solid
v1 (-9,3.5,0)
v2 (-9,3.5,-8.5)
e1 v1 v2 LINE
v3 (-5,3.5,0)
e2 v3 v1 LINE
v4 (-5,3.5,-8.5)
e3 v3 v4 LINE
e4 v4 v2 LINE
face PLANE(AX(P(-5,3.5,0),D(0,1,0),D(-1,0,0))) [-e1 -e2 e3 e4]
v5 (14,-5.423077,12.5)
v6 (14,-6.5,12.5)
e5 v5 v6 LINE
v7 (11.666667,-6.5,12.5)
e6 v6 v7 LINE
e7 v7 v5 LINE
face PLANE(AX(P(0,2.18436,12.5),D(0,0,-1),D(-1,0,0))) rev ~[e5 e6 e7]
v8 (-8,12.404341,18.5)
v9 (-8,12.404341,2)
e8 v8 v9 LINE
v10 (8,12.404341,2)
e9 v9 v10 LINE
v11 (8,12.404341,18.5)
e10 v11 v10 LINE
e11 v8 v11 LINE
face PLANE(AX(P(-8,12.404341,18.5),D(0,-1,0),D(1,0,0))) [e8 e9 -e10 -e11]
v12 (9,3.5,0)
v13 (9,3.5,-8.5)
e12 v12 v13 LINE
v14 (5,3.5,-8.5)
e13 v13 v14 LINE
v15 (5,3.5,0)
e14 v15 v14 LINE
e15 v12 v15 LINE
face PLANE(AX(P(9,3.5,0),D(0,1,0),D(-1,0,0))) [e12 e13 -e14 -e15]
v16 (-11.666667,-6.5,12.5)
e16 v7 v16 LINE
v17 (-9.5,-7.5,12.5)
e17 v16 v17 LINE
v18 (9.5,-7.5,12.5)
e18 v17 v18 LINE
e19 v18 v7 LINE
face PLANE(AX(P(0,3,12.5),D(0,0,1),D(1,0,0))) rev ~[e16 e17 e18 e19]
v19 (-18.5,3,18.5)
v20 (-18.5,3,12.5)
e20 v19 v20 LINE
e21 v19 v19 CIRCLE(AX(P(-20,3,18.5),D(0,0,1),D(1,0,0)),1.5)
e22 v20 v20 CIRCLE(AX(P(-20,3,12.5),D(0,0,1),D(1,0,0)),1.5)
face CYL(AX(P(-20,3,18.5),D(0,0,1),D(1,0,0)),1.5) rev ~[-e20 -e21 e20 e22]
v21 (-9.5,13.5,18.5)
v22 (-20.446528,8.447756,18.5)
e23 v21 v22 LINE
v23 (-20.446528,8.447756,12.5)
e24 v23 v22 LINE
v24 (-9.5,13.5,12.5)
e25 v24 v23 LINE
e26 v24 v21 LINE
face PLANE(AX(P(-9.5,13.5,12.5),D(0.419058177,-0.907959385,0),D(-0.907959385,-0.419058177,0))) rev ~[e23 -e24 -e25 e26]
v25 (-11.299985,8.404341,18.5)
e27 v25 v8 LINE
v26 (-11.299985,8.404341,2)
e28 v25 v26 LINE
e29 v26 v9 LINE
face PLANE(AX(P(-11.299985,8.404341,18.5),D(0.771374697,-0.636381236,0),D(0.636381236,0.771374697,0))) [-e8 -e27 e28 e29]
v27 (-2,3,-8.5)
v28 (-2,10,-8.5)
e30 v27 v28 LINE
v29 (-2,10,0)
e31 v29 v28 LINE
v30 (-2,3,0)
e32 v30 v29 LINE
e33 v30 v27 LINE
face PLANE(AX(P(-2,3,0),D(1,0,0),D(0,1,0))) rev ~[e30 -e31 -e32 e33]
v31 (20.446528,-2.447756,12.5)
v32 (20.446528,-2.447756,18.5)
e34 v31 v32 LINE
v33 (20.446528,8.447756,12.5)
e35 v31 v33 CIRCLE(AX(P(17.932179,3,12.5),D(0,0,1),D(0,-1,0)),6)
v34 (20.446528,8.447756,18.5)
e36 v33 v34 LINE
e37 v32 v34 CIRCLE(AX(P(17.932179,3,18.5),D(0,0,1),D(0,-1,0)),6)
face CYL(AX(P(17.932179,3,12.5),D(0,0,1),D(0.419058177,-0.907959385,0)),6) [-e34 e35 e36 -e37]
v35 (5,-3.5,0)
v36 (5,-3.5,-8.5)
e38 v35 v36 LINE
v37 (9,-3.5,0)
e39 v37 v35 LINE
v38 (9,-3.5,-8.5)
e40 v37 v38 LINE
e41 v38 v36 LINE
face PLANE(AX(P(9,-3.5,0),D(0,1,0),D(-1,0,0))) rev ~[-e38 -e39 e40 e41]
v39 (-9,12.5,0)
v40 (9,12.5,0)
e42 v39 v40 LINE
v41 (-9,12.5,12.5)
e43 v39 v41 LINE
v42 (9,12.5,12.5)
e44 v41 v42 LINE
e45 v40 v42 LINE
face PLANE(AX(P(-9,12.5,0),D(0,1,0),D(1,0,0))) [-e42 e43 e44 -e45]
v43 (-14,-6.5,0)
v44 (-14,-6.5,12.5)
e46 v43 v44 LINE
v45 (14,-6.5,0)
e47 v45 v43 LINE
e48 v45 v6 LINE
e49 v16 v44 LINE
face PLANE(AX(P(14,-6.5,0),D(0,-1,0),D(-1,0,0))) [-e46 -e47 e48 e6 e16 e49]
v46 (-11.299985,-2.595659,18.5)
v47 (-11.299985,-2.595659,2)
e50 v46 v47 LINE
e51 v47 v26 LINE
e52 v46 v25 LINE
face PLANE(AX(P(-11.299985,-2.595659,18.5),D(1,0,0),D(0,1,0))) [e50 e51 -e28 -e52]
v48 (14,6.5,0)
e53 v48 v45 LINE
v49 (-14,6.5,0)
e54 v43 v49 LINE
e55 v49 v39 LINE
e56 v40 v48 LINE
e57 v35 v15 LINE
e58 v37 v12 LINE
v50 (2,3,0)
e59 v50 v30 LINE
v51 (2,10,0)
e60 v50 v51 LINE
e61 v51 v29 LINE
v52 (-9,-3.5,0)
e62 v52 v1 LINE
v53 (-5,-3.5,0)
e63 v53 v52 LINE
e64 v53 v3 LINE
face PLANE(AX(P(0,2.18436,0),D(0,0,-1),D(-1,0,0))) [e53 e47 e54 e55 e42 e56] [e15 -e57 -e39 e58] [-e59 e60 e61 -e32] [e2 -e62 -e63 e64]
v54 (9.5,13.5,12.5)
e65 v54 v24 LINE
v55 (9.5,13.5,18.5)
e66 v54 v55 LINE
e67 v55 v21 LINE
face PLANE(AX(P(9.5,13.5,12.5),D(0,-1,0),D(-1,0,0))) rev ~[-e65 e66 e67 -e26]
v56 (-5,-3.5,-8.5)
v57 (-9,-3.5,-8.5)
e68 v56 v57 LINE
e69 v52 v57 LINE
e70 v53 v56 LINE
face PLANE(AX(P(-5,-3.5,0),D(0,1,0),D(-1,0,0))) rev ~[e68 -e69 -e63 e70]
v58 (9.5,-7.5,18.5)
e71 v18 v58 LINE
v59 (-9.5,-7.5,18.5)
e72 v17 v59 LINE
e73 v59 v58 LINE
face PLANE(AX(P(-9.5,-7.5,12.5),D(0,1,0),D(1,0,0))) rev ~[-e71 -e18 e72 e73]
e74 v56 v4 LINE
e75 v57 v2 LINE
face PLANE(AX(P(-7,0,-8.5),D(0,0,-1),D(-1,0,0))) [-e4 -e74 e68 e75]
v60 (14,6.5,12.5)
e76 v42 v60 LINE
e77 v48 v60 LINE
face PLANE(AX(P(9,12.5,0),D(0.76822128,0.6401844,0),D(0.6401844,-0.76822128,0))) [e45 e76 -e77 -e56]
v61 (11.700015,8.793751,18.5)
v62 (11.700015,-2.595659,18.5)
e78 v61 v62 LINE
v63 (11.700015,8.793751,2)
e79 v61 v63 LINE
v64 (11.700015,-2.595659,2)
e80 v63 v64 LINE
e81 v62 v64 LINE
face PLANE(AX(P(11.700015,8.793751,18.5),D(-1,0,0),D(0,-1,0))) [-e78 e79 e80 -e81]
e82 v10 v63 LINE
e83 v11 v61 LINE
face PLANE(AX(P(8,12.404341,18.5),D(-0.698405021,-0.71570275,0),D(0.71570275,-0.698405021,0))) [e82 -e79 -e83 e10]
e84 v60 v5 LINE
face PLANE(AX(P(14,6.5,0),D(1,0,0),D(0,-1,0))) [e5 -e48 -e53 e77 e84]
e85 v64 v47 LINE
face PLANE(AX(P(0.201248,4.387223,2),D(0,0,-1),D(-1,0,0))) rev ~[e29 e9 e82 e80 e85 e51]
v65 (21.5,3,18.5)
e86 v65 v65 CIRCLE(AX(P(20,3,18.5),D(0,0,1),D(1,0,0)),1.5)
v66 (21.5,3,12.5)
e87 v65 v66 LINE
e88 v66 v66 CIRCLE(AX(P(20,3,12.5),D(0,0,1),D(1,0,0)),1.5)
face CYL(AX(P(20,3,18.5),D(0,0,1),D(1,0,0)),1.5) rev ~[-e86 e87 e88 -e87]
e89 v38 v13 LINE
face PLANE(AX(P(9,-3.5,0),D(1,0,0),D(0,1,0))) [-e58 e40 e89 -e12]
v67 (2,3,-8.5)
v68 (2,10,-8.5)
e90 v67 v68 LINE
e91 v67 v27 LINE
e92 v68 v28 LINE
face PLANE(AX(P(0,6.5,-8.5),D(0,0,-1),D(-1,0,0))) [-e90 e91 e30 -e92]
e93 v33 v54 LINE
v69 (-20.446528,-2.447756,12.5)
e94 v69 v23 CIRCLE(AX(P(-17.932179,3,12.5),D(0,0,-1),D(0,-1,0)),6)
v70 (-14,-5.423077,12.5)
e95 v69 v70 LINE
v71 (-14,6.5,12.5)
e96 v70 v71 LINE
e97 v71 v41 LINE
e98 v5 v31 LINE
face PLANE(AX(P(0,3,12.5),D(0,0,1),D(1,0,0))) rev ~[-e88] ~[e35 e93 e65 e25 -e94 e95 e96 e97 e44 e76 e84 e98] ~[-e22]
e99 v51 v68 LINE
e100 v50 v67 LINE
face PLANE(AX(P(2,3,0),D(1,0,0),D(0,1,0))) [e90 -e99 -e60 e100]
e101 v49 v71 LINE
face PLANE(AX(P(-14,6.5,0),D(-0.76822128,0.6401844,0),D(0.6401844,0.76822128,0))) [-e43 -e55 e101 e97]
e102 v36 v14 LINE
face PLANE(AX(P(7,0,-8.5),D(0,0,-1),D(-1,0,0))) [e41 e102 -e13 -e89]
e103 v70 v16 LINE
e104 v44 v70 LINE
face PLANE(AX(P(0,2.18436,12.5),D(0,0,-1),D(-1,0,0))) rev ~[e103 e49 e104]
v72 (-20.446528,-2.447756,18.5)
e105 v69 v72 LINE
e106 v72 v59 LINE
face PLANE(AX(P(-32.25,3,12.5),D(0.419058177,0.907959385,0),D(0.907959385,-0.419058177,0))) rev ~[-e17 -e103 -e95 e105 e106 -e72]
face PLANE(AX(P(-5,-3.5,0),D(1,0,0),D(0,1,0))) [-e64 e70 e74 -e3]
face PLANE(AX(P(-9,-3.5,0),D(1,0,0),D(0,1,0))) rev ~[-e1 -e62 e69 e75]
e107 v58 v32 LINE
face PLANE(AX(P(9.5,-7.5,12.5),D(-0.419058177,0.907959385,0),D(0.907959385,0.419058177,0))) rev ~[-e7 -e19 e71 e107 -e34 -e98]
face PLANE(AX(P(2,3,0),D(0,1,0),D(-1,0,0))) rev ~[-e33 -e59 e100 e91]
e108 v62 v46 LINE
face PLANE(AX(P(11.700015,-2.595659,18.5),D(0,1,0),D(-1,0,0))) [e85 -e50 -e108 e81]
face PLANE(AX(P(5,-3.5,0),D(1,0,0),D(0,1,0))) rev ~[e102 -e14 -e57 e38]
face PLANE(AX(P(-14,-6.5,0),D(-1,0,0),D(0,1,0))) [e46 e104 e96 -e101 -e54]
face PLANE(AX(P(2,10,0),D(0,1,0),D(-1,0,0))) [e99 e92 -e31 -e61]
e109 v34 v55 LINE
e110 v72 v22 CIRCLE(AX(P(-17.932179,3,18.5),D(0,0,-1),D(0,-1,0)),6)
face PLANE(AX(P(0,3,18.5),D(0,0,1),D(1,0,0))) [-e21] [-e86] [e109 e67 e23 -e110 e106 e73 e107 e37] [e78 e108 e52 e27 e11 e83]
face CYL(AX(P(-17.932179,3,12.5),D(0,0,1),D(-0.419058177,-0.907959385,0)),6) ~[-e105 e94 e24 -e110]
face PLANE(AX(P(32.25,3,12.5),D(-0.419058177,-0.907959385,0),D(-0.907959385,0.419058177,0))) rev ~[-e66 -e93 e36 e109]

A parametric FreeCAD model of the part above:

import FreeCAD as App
import Part
import Sketcher
from FreeCAD import Vector


def edges_at(feature, points):
    """Names of the edges that pass closest to the given points."""
    edges = feature.Shape.Edges
    near = lambda p: min(range(len(edges)), key=lambda i: edges[i].distToShape(Part.Vertex(*p))[0])
    return sorted({f"Edge{near(p) + 1}" for p in points})


def add_polygon(sketch, points):
    """Adds a closed chain of lines whose ends are joined by coincident constraints."""
    first, n = sketch.GeometryCount, len(points)
    for a, b in zip(points, points[1:] + points[:1]):
        sketch.addGeometry(Part.LineSegment(App.Vector(*a, 0), App.Vector(*b, 0)), False)
    for i in range(n):
        sketch.addConstraint(Sketcher.Constraint("Coincident", first + i, 2, first + (i + 1) % n, 1))

doc = App.newDocument("Part")
params = doc.addObject("Spreadsheet::Sheet", "Params")
for row, (alias, value) in enumerate([
    ("sketch1_width", "18 mm"),
    ("sketch1_width2", "28 mm"),
    ("sketch1_height", "13 mm"),
    ("pad1_length", "12.5 mm"),
    ("sketch2_width", "4 mm"),
    ("sketch2_height", "7 mm"),
    ("pad2_length", "8.5 mm"),
    ("sketch3_width", "19 mm"),
    ("pad3_length", "6 mm"),
    ("sketch4_diameter", "3 mm"),
    ("pocket1_length", "6 mm"),
    ("fillet_radius", "6 mm"),
    ("sketch5_width", "16 mm"),
    ("sketch5_width2", "23 mm"),
    ("sketch5_height", "11 mm"),
    ("pocket2_length", "16.5 mm"),
], start=1):
    params.set(f"A{row}", alias)
    params.set(f"B{row}", "=" + value)
    params.setAlias(f"B{row}", alias)

body = doc.addObject("PartDesign::Body", "Body")

sketch1 = body.newObject("Sketcher::SketchObject", "Sketch")
sketch1.AttachmentSupport = (doc.getObject("XY_Plane"), [""])
sketch1.MapMode = "FlatFace"
add_polygon(sketch1, [(9, 12), (-9, 12), (-14, 6), (-14, -6), (14, -6), (14, 6)])
sketch1.addConstraint([
    Sketcher.Constraint("Horizontal", 0),
    Sketcher.Constraint("Vertical", 2),
    Sketcher.Constraint("Horizontal", 3),
    Sketcher.Constraint("Vertical", 4),
    Sketcher.Constraint("Symmetric", 1, 2, 3, 2, -1, 1),
    Sketcher.Constraint("Horizontal", 1, 2, 4, 2),
    Sketcher.Constraint("Equal", 1, 5),
    Sketcher.Constraint("DistanceX", 0, 2, 0, 1, 18.0),
    Sketcher.Constraint("DistanceX", 3, 1, 3, 2, 28.0),
    Sketcher.Constraint("DistanceY", 2, 2, 2, 1, 13.0),
    Sketcher.Constraint("DistanceY", 1, 2, 0, 2, 6.0),
])
sketch1.setExpression("Constraints[13]", "Params.sketch1_width")
sketch1.setExpression("Constraints[14]", "Params.sketch1_width2")
sketch1.setExpression("Constraints[15]", "Params.sketch1_height")
pad1 = body.newObject("PartDesign::Pad", "Pad")
pad1.Profile = sketch1
pad1.setExpression("Length", "Params.pad1_length")

sketch2 = body.newObject("Sketcher::SketchObject", "Sketch001")
sketch2.AttachmentSupport = (doc.getObject("XY_Plane"), [""])
sketch2.MapMode = "FlatFace"
add_polygon(sketch2, [(9, 3.5), (9, -3.5), (5, -3.5), (5, 3.5)])
add_polygon(sketch2, [(2, 10), (2, 3), (-2, 3), (-2, 10)])
add_polygon(sketch2, [(-5, 3.5), (-5, -3.5), (-9, -3.5), (-9, 3.5)])
sketch2.addConstraint([
    Sketcher.Constraint("Vertical", 0),
    Sketcher.Constraint("Horizontal", 1),
    Sketcher.Constraint("Vertical", 2),
    Sketcher.Constraint("Horizontal", 3),
    Sketcher.Constraint("Vertical", 4),
    Sketcher.Constraint("Horizontal", 5),
    Sketcher.Constraint("Vertical", 6),
    Sketcher.Constraint("Horizontal", 7),
    Sketcher.Constraint("Vertical", 8),
    Sketcher.Constraint("Horizontal", 9),
    Sketcher.Constraint("Vertical", 10),
    Sketcher.Constraint("Horizontal", 11),
    Sketcher.Constraint("Symmetric", 2, 2, 8, 2, -1, 1),
    Sketcher.Constraint("Symmetric", 0, 2, 10, 2, -1, 1),
    Sketcher.Constraint("Horizontal", 1, 2, 8, 2),
    Sketcher.Constraint("Equal", 3, 5),
    Sketcher.Constraint("Equal", 2, 4),
    Sketcher.Constraint("DistanceX", 1, 2, 1, 1, 4.0),
    Sketcher.Constraint("DistanceY", 0, 2, 0, 1, 7.0),
    Sketcher.Constraint("DistanceX", -1, 1, 0, 2, 9.0),
    Sketcher.Constraint("DistanceX", -1, 1, 4, 2, 2.0),
    Sketcher.Constraint("DistanceY", -1, 1, 4, 2, 3.0),
])
sketch2.setExpression("Constraints[29]", "Params.sketch2_width")
sketch2.setExpression("Constraints[30]", "Params.sketch2_height")
pad2 = body.newObject("PartDesign::Pad", "Pad001")
pad2.Profile = sketch2
pad2.setExpression("Length", "Params.pad2_length")
pad2.Reversed = True

sketch3 = body.newObject("Sketcher::SketchObject", "Sketch002")
sketch3.AttachmentSupport = (doc.getObject("XY_Plane"), [""])
sketch3.MapMode = "FlatFace"
sketch3.AttachmentOffset = App.Placement(Vector(0, 0, 12.5), App.Rotation())
add_polygon(sketch3, [(-10, -8), (10, -8), (32, 3), (10, 14), (-10, 14), (-32, 3)])
sketch3.addConstraint([
    Sketcher.Constraint("Horizontal", 0),
    Sketcher.Constraint("Horizontal", 3),
    Sketcher.Constraint("Symmetric", 1, 2, 4, 2, -2),
    Sketcher.Constraint("Parallel", 1, 4),
    Sketcher.Constraint("Parallel", 2, 5),
    Sketcher.Constraint("Vertical", 0, 2, 2, 2),
    Sketcher.Constraint("Vertical", 3, 2, 5, 2),
    Sketcher.Constraint("DistanceX", 0, 1, 0, 2, 19.0),
    Sketcher.Constraint("DistanceY", -1, 1, 1, 2, 3.0),
    Sketcher.Constraint("DistanceY", 0, 2, 2, 2, 21.0),
    Sketcher.Constraint("DistanceX", 4, 2, 1, 2, 64.5),
])
sketch3.setExpression("Constraints[13]", "Params.sketch3_width")
pad3 = body.newObject("PartDesign::Pad", "Pad002")
pad3.Profile = sketch3
pad3.setExpression("Length", "Params.pad3_length")

sketch4 = body.newObject("Sketcher::SketchObject", "Sketch003")
sketch4.AttachmentSupport = (doc.getObject("XY_Plane"), [""])
sketch4.MapMode = "FlatFace"
sketch4.AttachmentOffset = App.Placement(Vector(0, 0, 18.5), App.Rotation())
sketch4.addGeometry([
    Part.Circle(Vector(-20, 3, 0), Vector(0, 0, 1), 1.5),
    Part.Circle(Vector(20, 3, 0), Vector(0, 0, 1), 1.5),
], False)
sketch4.addConstraint([
    Sketcher.Constraint("Equal", 0, 1),
    Sketcher.Constraint("Symmetric", 0, 3, 1, 3, -2),
    Sketcher.Constraint("Diameter", 0, 3.0),
    Sketcher.Constraint("DistanceX", 0, 3, -1, 1, 20.0),
    Sketcher.Constraint("DistanceY", -1, 1, 0, 3, 3.0),
])
sketch4.setExpression("Constraints[2]", "Params.sketch4_diameter")
pocket1 = body.newObject("PartDesign::Pocket", "Pocket")
pocket1.Profile = sketch4
pocket1.setExpression("Length", "Params.pocket1_length")
doc.recompute()

fillet = body.newObject("PartDesign::Fillet", "Fillet")
fillet.Base = (pocket1, edges_at(pocket1, [(-32.25, 3, 15.5), (32.25, 3, 15.5)]))
fillet.setExpression("Radius", "Params.fillet_radius")

sketch5 = body.newObject("Sketcher::SketchObject", "Sketch004")
sketch5.AttachmentSupport = (doc.getObject("XY_Plane"), [""])
sketch5.MapMode = "FlatFace"
sketch5.AttachmentOffset = App.Placement(Vector(0, 0, 18.5), App.Rotation())
add_polygon(sketch5, [(8, 12), (-8, 12), (-11, 8), (-11, -3), (12, -3), (12, 9)])
sketch5.addConstraint([
    Sketcher.Constraint("Horizontal", 0),
    Sketcher.Constraint("Vertical", 2),
    Sketcher.Constraint("Horizontal", 3),
    Sketcher.Constraint("Vertical", 4),
    Sketcher.Constraint("DistanceX", 0, 2, 0, 1, 16.0),
    Sketcher.Constraint("DistanceX", 3, 1, 3, 2, 23.0),
    Sketcher.Constraint("DistanceY", 2, 2, 2, 1, 11.0),
    Sketcher.Constraint("DistanceX", 0, 2, -1, 1, 8.0),
    Sketcher.Constraint("DistanceY", 1, 2, 0, 2, 4.0),
    Sketcher.Constraint("DistanceY", 4, 1, 4, 2, 11.38941),
    Sketcher.Constraint("DistanceY", -1, 1, 0, 2, 12.404341),
    Sketcher.Constraint("Distance", 1, 5.185547),
])
sketch5.setExpression("Constraints[10]", "Params.sketch5_width")
sketch5.setExpression("Constraints[11]", "Params.sketch5_width2")
sketch5.setExpression("Constraints[12]", "Params.sketch5_height")
pocket2 = body.newObject("PartDesign::Pocket", "Pocket001")
pocket2.Profile = sketch5
pocket2.setExpression("Length", "Params.pocket2_length")

doc.recompute()
